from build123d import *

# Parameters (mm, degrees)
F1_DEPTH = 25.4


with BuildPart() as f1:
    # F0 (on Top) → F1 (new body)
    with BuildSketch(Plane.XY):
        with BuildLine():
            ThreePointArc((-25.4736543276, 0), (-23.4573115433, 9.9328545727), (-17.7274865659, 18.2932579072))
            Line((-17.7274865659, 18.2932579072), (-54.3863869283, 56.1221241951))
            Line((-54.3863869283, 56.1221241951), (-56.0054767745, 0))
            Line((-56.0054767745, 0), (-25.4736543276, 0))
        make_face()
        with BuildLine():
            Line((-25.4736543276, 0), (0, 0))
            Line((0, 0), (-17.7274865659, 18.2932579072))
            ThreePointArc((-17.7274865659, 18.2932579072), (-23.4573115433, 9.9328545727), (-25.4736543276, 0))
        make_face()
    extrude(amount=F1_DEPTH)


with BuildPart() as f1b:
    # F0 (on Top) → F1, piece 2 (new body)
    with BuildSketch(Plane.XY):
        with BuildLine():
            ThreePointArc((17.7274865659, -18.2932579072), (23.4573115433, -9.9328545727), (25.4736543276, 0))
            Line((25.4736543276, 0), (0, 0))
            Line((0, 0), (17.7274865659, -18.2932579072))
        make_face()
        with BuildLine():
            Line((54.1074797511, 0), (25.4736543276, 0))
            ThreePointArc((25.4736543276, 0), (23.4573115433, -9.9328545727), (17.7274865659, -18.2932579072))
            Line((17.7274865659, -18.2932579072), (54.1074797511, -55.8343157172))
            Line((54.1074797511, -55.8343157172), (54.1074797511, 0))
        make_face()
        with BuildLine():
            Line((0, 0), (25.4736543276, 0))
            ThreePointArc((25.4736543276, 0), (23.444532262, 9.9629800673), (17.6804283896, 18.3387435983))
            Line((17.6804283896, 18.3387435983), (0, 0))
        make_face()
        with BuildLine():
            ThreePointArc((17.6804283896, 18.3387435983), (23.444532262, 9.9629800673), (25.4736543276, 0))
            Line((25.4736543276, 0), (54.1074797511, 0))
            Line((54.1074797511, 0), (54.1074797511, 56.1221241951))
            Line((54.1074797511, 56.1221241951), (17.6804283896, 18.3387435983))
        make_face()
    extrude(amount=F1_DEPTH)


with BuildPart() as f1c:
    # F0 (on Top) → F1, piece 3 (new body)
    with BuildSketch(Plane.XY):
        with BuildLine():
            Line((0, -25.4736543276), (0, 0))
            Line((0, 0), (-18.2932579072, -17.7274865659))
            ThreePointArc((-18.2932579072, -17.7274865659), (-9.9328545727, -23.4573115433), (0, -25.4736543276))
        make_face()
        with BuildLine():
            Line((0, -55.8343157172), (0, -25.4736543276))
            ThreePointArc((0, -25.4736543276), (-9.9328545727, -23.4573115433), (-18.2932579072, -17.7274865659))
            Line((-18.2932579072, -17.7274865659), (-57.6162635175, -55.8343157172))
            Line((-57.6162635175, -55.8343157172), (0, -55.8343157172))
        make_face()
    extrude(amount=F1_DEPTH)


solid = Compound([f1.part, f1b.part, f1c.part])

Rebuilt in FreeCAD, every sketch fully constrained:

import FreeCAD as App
import Part
import Sketcher

V = App.Vector

doc = App.newDocument("Part")
params = doc.addObject("Spreadsheet::Sheet", "Params")
for row, (alias, value) in enumerate([
    ("pad1_length", "1 in"),
    ("pad2_length", "1 in"),
    ("pad3_length", "1 in"),
], start=1):
    params.set(f"A{row}", alias)
    params.set(f"B{row}", "=" + value)
    params.setAlias(f"B{row}", alias)

body = doc.addObject("PartDesign::Body", "Body")

# Sketch on XY plane
sketch1 = body.newObject("Sketcher::SketchObject", "Sketch")
sketch1.AttachmentSupport = (doc.getObject("XY_Plane"), [""])
sketch1.MapMode = "FlatFace"
sketch1.addGeometry(Part.LineSegment(V(-18, 18, 0), V(-54, 56, 0)), False)
sketch1.addGeometry(Part.LineSegment(V(-54, 56, 0), V(-56, 0, 0)), False)
sketch1.addGeometry(Part.LineSegment(V(-56, 0, 0), V(0, 0, 0)), False)
sketch1.addGeometry(Part.LineSegment(V(0, 0, 0), V(-18, 18, 0)), False)
sketch1.addConstraint(Sketcher.Constraint("Coincident", 0, 2, 1, 1))
sketch1.addConstraint(Sketcher.Constraint("Coincident", 1, 2, 2, 1))
sketch1.addConstraint(Sketcher.Constraint("Coincident", 2, 2, 3, 1))
sketch1.addConstraint(Sketcher.Constraint("Coincident", 3, 2, 0, 1))
sketch1.addConstraint(Sketcher.Constraint("Horizontal", 2))
sketch1.addConstraint(Sketcher.Constraint("Coincident", 2, 2, -1, 1))
sketch1.addConstraint(Sketcher.Constraint("Parallel", 0, 3))
sketch1.addConstraint(Sketcher.Constraint("Distance", 0, 52.677302))
sketch1.addConstraint(Sketcher.Constraint("DistanceX", 0, 2, 3, 2, 36.6589))
sketch1.addConstraint(Sketcher.Constraint("DistanceX", 2, 1, 2, 2, 56.005477))
sketch1.addConstraint(Sketcher.Constraint("DistanceX", 1, 2, 0, 2, 1.61909))
pad1 = body.newObject("PartDesign::Pad", "Pad")
pad1.Profile = sketch1
pad1.setExpression("Length", "Params.pad1_length")
body2 = doc.addObject("PartDesign::Body", "Body001")

# Sketch on XY plane
sketch2 = body2.newObject("Sketcher::SketchObject", "Sketch001")
sketch2.AttachmentSupport = (doc.getObject("XY_Plane001"), [""])
sketch2.MapMode = "FlatFace"
sketch2.addGeometry(Part.LineSegment(V(0, 0, 0), V(18, -18, 0)), False)
sketch2.addGeometry(Part.LineSegment(V(18, -18, 0), V(54, -56, 0)), False)
sketch2.addGeometry(Part.LineSegment(V(54, -56, 0), V(54, 56, 0)), False)
sketch2.addGeometry(Part.LineSegment(V(54, 56, 0), V(18, 18, 0)), False)
sketch2.addGeometry(Part.LineSegment(V(18, 18, 0), V(0, 0, 0)), False)
sketch2.addConstraint(Sketcher.Constraint("Coincident", 0, 2, 1, 1))
sketch2.addConstraint(Sketcher.Constraint("Coincident", 1, 2, 2, 1))
sketch2.addConstraint(Sketcher.Constraint("Coincident", 2, 2, 3, 1))
sketch2.addConstraint(Sketcher.Constraint("Coincident", 3, 2, 4, 1))
sketch2.addConstraint(Sketcher.Constraint("Coincident", 4, 2, 0, 1))
sketch2.addConstraint(Sketcher.Constraint("Vertical", 2))
sketch2.addConstraint(Sketcher.Constraint("Coincident", 4, 2, -1, 1))
sketch2.addConstraint(Sketcher.Constraint("Parallel", 0, 1))
sketch2.addConstraint(Sketcher.Constraint("Parallel", 3, 4))
sketch2.addConstraint(Sketcher.Constraint("Equal", 0, 4))
sketch2.addConstraint(Sketcher.Constraint("DistanceY", 2, 1, 2, 2, 111.95644))
sketch2.addConstraint(Sketcher.Constraint("DistanceY", 0, 2, 3, 2, 36.632002))
sketch2.addConstraint(Sketcher.Constraint("DistanceX", -1, 1, 1, 2, 54.10748))
sketch2.addConstraint(Sketcher.Constraint("DistanceX", -1, 1, 3, 2, 17.680428))
pad2 = body2.newObject("PartDesign::Pad", "Pad001")
pad2.Profile = sketch2
pad2.setExpression("Length", "Params.pad2_length")
body3 = doc.addObject("PartDesign::Body", "Body002")

# Sketch on XY plane
sketch3 = body3.newObject("Sketcher::SketchObject", "Sketch002")
sketch3.AttachmentSupport = (doc.getObject("XY_Plane002"), [""])
sketch3.MapMode = "FlatFace"
sketch3.addGeometry(Part.LineSegment(V(0, 0, 0), V(-18, -18, 0)), False)
sketch3.addGeometry(Part.LineSegment(V(-18, -18, 0), V(-58, -56, 0)), False)
sketch3.addGeometry(Part.LineSegment(V(-58, -56, 0), V(0, -56, 0)), False)
sketch3.addGeometry(Part.LineSegment(V(0, -56, 0), V(0, 0, 0)), False)
sketch3.addConstraint(Sketcher.Constraint("Coincident", 0, 2, 1, 1))
sketch3.addConstraint(Sketcher.Constraint("Coincident", 1, 2, 2, 1))
sketch3.addConstraint(Sketcher.Constraint("Coincident", 2, 2, 3, 1))
sketch3.addConstraint(Sketcher.Constraint("Coincident", 3, 2, 0, 1))
sketch3.addConstraint(Sketcher.Constraint("Horizontal", 2))
sketch3.addConstraint(Sketcher.Constraint("Vertical", 3))
sketch3.addConstraint(Sketcher.Constraint("Coincident", 3, 2, -1, 1))
sketch3.addConstraint(Sketcher.Constraint("Parallel", 0, 1))
sketch3.addConstraint(Sketcher.Constraint("DistanceX", 2, 1, 2, 2, 57.616264))
sketch3.addConstraint(Sketcher.Constraint("DistanceY", 3, 1, 3, 2, 55.834316))
sketch3.addConstraint(Sketcher.Constraint("DistanceY", 1, 2, 0, 2, 38.106829))
pad3 = body3.newObject("PartDesign::Pad", "Pad002")
pad3.Profile = sketch3
pad3.setExpression("Length", "Params.pad3_length")

doc.recompute()
